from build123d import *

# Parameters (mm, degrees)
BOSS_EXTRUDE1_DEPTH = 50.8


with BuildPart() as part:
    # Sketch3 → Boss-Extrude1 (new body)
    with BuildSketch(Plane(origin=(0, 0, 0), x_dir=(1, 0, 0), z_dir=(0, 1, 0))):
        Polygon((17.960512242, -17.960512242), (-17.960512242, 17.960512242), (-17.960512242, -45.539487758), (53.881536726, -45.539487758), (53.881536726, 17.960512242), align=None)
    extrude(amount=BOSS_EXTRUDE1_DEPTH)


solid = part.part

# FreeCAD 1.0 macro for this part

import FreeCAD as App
import Part
import Sketcher
Q = App.Units.Quantity

doc = App.newDocument("Part")
body = doc.addObject("PartDesign::Body", "Body")

sketch1 = body.newObject("Sketcher::SketchObject", "Sketch")
sketch1.AttachmentSupport = (doc.getObject("XZ_Plane"), [""])
sketch1.MapMode = "FlatFace"
sketch1.addGeometry([
    Part.LineSegment(App.Vector(18, 18, 0), App.Vector(-18, -18, 0)),
    Part.LineSegment(App.Vector(-18, -18, 0), App.Vector(-18, 46, 0)),
    Part.LineSegment(App.Vector(-18, 46, 0), App.Vector(54, 46, 0)),
    Part.LineSegment(App.Vector(54, 46, 0), App.Vector(54, -18, 0)),
    Part.LineSegment(App.Vector(54, -18, 0), App.Vector(18, 18, 0)),
], False)
sketch1.addConstraint([
    Sketcher.Constraint("Coincident", 0, 2, 1, 1),
    Sketcher.Constraint("Coincident", 1, 2, 2, 1),
    Sketcher.Constraint("Coincident", 2, 2, 3, 1),
    Sketcher.Constraint("Coincident", 3, 2, 4, 1),
    Sketcher.Constraint("Coincident", 4, 2, 0, 1),
    Sketcher.Constraint("Vertical", 1),
    Sketcher.Constraint("Horizontal", 2),
    Sketcher.Constraint("Vertical", 3),
    Sketcher.Constraint("Symmetric", 0, 2, 4, 2, -1, 1),
    Sketcher.Constraint("Perpendicular", 0, 4),
    Sketcher.Constraint("Horizontal", 0, 2, 3, 2),
    Sketcher.Constraint("Equal", 0, 4),
    Sketcher.Constraint("Distance", 0, Q("2 in")),
    Sketcher.Constraint("DistanceY", 1, 1, 1, 2, Q("2.5 in")),
])
pad1 = body.newObject("PartDesign::Pad", "Pad")
pad1.Profile = sketch1
pad1.Length = Q("2 in")
pad1.Reversed = True

doc.recompute()
